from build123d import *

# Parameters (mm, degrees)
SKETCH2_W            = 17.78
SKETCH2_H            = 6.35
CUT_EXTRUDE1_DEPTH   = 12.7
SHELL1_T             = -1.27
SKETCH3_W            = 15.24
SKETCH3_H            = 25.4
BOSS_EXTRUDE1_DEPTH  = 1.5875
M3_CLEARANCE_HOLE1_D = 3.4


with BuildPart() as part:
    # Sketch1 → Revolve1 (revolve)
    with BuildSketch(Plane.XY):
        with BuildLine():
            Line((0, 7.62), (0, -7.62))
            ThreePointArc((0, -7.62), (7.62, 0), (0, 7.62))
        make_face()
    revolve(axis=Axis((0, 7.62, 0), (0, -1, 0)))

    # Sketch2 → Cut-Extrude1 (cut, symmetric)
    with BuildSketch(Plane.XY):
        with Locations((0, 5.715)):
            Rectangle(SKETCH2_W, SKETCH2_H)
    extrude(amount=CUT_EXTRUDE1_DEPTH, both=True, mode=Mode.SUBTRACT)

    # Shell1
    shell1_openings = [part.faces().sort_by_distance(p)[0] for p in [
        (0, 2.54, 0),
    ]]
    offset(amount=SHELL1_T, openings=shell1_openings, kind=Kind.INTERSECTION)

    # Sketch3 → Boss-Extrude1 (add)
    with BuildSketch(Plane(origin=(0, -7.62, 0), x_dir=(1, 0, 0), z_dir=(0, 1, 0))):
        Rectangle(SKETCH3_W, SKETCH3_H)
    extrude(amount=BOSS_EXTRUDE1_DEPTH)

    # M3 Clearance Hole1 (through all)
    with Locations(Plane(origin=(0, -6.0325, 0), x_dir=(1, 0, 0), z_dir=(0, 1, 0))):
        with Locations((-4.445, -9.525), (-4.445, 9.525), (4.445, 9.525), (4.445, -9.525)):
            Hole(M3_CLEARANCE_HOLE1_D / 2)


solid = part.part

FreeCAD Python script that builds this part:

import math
import FreeCAD as App
import Part
import Sketcher
Q = App.Units.Quantity


def faces_at(feature, points):
    """Names of the faces that lie closest to the given points."""
    faces = feature.Shape.Faces
    near = lambda p: min(range(len(faces)), key=lambda i: faces[i].distToShape(Part.Vertex(*p))[0])
    return sorted({f"Face{near(p) + 1}" for p in points})

doc = App.newDocument("Part")
body = doc.addObject("PartDesign::Body", "Body")

# Sketch on XY plane
sketch1 = body.newObject("Sketcher::SketchObject", "Sketch")
sketch1.AttachmentSupport = (doc.getObject("XY_Plane"), [""])
sketch1.MapMode = "FlatFace"
sketch1.addGeometry(Part.LineSegment(App.Vector(0, 8, 0), App.Vector(0, -8, 0)), False)
sketch1.addGeometry(Part.ArcOfCircle(Part.Circle(App.Vector(0, 0, 0), App.Vector(0, 0, 1), 8), math.radians(-90), math.radians(90)), False)
sketch1.addConstraint(Sketcher.Constraint("Coincident", 0, 1, 1, 2))
sketch1.addConstraint(Sketcher.Constraint("Coincident", 1, 1, 0, 2))
sketch1.addConstraint(Sketcher.Constraint("Vertical", 0))
sketch1.addConstraint(Sketcher.Constraint("Coincident", 1, 3, -1, 1))
sketch1.addConstraint(Sketcher.Constraint("PointOnObject", 0, 1, -2))
sketch1.addConstraint(Sketcher.Constraint("Radius", 1, Q("0.3 in")))
revolution = body.newObject("PartDesign::Revolution", "Revolution")
revolution.Profile = sketch1
revolution.ReferenceAxis = (sketch1, ["V_Axis"])
revolution.Angle = 360

# Sketch on XY plane
sketch2 = body.newObject("Sketcher::SketchObject", "Sketch001")
sketch2.AttachmentSupport = (doc.getObject("XY_Plane"), [""])
sketch2.MapMode = "FlatFace"
sketch2.addGeometry(Part.LineSegment(App.Vector(-9, 9, 0), App.Vector(-9, 3, 0)), False)
sketch2.addGeometry(Part.LineSegment(App.Vector(-9, 3, 0), App.Vector(9, 3, 0)), False)
sketch2.addGeometry(Part.LineSegment(App.Vector(9, 3, 0), App.Vector(9, 9, 0)), False)
sketch2.addGeometry(Part.LineSegment(App.Vector(9, 9, 0), App.Vector(-9, 9, 0)), False)
sketch2.addConstraint(Sketcher.Constraint("Coincident", 0, 2, 1, 1))
sketch2.addConstraint(Sketcher.Constraint("Coincident", 1, 2, 2, 1))
sketch2.addConstraint(Sketcher.Constraint("Coincident", 2, 2, 3, 1))
sketch2.addConstraint(Sketcher.Constraint("Coincident", 3, 2, 0, 1))
sketch2.addConstraint(Sketcher.Constraint("Vertical", 0))
sketch2.addConstraint(Sketcher.Constraint("Horizontal", 1))
sketch2.addConstraint(Sketcher.Constraint("Vertical", 2))
sketch2.addConstraint(Sketcher.Constraint("Horizontal", 3))
sketch2.addConstraint(Sketcher.Constraint("DistanceX", 1, 1, 1, 2, Q("0.7 in")))
sketch2.addConstraint(Sketcher.Constraint("DistanceY", 0, 2, 0, 1, Q("0.25 in")))
sketch2.addConstraint(Sketcher.Constraint("DistanceY", -1, 1, 0, 2, Q("0.1 in")))
sketch2.addConstraint(Sketcher.Constraint("DistanceX", 0, 2, -1, 1, Q("0.35 in")))
pocket1 = body.newObject("PartDesign::Pocket", "Pocket")
pocket1.Profile = sketch2
pocket1.Length = Q("1 in")
pocket1.Midplane = True
doc.recompute()

thickness = body.newObject("PartDesign::Thickness", "Thickness")
thickness.Base = (pocket1, faces_at(pocket1, [(0, 2.54, 0)]))
thickness.Value = Q("0.05 in")
thickness.Reversed = True
thickness.Join = "Intersection"

# Sketch on XZ plane
sketch3 = body.newObject("Sketcher::SketchObject", "Sketch002")
sketch3.AttachmentSupport = (doc.getObject("XZ_Plane"), [""])
sketch3.MapMode = "FlatFace"
sketch3.AttachmentOffset = App.Placement(App.Vector(0, 0, 0.3 * 25.4), App.Rotation())
sketch3.addGeometry(Part.LineSegment(App.Vector(-8, -13, 0), App.Vector(-8, 13, 0)), False)
sketch3.addGeometry(Part.LineSegment(App.Vector(-8, 13, 0), App.Vector(8, 13, 0)), False)
sketch3.addGeometry(Part.LineSegment(App.Vector(8, 13, 0), App.Vector(8, -13, 0)), False)
sketch3.addGeometry(Part.LineSegment(App.Vector(8, -13, 0), App.Vector(-8, -13, 0)), False)
sketch3.addConstraint(Sketcher.Constraint("Coincident", 0, 2, 1, 1))
sketch3.addConstraint(Sketcher.Constraint("Coincident", 1, 2, 2, 1))
sketch3.addConstraint(Sketcher.Constraint("Coincident", 2, 2, 3, 1))
sketch3.addConstraint(Sketcher.Constraint("Coincident", 3, 2, 0, 1))
sketch3.addConstraint(Sketcher.Constraint("Vertical", 0))
sketch3.addConstraint(Sketcher.Constraint("Horizontal", 1))
sketch3.addConstraint(Sketcher.Constraint("Vertical", 2))
sketch3.addConstraint(Sketcher.Constraint("Horizontal", 3))
sketch3.addConstraint(Sketcher.Constraint("Symmetric", 0, 2, 2, 2, -1, 1))
sketch3.addConstraint(Sketcher.Constraint("DistanceY", 0, 1, 0, 2, Q("1 in")))
sketch3.addConstraint(Sketcher.Constraint("DistanceX", 1, 1, 1, 2, Q("0.6 in")))
pad1 = body.newObject("PartDesign::Pad", "Pad")
pad1.Profile = sketch3
pad1.Length = Q("0.0625 in")
pad1.Reversed = True

# Sketch on XZ plane
sketch4 = body.newObject("Sketcher::SketchObject", "Sketch003")
sketch4.AttachmentSupport = (doc.getObject("XZ_Plane"), [""])
sketch4.MapMode = "FlatFace"
sketch4.AttachmentOffset = App.Placement(App.Vector(0, 0, 0.2375 * 25.4), App.Rotation())
sketch4.addGeometry(Part.Circle(App.Vector(-4.4, 9.5, 0), App.Vector(0, 0, 1), 1.7), False)
sketch4.addGeometry(Part.Circle(App.Vector(-4.4, -9.5, 0), App.Vector(0, 0, 1), 1.7), False)
sketch4.addGeometry(Part.Circle(App.Vector(4.4, -9.5, 0), App.Vector(0, 0, 1), 1.7), False)
sketch4.addGeometry(Part.Circle(App.Vector(4.4, 9.5, 0), App.Vector(0, 0, 1), 1.7), False)
sketch4.addConstraint(Sketcher.Constraint("Equal", 0, 1))
sketch4.addConstraint(Sketcher.Constraint("Equal", 1, 2))
sketch4.addConstraint(Sketcher.Constraint("Equal", 2, 3))
sketch4.addConstraint(Sketcher.Constraint("Symmetric", 0, 3, 2, 3, -1, 1))
sketch4.addConstraint(Sketcher.Constraint("Symmetric", 1, 3, 3, 3, -1, 1))
sketch4.addConstraint(Sketcher.Constraint("Symmetric", 1, 3, 2, 3, -2))
sketch4.addConstraint(Sketcher.Constraint("Diameter", 0, 3.4))
sketch4.addConstraint(Sketcher.Constraint("DistanceY", 1, 3, 0, 3, Q("0.75 in")))
sketch4.addConstraint(Sketcher.Constraint("DistanceX", 1, 3, 2, 3, Q("0.35 in")))
doc.recompute()
hole = body.newObject("PartDesign::Hole", "Hole")
hole.Profile = sketch4
hole.ThreadType = "None"
hole.Diameter = 3.4
hole.DepthType = "ThroughAll"
hole.Reversed = True

doc.recompute()
